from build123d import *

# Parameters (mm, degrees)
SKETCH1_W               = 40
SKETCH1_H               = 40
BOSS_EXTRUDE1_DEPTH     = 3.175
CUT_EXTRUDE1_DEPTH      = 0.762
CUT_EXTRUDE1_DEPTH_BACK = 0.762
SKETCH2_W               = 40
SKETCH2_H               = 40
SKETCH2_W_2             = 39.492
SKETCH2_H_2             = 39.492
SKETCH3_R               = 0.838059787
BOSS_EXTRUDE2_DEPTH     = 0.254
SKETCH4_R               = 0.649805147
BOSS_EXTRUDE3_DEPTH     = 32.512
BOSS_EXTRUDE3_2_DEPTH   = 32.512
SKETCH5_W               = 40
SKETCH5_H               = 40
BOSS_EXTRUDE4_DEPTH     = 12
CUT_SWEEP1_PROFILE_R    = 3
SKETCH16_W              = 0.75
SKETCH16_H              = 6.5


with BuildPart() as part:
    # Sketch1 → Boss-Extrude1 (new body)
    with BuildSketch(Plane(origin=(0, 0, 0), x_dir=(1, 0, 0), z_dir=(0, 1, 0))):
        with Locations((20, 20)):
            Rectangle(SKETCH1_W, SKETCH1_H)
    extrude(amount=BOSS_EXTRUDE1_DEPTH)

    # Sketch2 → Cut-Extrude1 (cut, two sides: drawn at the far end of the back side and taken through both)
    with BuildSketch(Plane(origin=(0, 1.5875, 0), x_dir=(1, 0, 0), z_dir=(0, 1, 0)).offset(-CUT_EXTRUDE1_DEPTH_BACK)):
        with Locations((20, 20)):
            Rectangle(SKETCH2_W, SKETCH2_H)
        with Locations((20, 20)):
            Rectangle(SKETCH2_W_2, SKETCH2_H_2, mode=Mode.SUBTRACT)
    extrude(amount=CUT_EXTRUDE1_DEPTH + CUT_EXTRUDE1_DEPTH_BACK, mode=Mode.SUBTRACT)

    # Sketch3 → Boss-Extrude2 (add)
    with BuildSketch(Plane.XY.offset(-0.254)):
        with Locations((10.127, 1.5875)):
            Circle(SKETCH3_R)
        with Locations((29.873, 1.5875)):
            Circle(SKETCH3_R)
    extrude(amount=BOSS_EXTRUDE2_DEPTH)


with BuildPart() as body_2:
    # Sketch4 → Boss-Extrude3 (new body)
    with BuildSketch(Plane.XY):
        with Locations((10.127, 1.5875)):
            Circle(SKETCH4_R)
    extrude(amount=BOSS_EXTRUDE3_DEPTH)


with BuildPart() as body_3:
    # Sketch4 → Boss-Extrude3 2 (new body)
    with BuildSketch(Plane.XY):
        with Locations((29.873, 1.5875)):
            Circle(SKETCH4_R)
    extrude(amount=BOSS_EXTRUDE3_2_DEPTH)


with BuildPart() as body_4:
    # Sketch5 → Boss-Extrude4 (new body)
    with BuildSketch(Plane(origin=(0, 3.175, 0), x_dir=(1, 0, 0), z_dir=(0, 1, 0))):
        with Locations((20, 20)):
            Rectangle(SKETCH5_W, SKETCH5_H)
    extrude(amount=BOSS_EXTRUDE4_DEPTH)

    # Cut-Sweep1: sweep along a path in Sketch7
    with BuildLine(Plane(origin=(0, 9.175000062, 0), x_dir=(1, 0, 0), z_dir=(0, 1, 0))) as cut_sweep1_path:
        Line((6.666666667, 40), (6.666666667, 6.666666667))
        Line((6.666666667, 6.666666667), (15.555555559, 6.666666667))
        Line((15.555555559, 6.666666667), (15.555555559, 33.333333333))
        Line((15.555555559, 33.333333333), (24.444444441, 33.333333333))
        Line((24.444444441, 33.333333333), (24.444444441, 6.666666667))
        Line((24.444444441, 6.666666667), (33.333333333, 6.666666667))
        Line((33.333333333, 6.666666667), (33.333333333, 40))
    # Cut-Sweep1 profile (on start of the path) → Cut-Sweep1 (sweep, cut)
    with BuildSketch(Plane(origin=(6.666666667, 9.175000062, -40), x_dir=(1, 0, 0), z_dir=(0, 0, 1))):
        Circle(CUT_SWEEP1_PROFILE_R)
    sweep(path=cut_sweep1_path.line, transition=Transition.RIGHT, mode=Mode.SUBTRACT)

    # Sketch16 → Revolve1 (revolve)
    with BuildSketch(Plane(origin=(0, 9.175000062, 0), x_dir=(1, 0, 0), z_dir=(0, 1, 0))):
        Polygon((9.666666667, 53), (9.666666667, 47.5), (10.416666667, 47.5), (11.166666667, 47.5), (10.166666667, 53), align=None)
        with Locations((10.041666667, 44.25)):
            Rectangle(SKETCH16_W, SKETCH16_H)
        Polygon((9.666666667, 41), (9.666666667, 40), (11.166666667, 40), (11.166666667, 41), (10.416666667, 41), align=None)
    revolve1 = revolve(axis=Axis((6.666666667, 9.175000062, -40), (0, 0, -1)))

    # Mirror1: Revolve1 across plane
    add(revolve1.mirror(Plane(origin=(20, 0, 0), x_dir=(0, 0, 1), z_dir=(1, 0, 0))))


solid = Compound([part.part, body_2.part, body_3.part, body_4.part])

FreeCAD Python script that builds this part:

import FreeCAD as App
import Part
import Sketcher

V = App.Vector
Q = App.Units.Quantity


def add_polygon(sketch, points):
    """Adds a closed chain of lines whose ends are joined by coincident constraints."""
    first, n = sketch.GeometryCount, len(points)
    for a, b in zip(points, points[1:] + points[:1]):
        sketch.addGeometry(Part.LineSegment(App.Vector(*a, 0), App.Vector(*b, 0)), False)
    for i in range(n):
        sketch.addConstraint(Sketcher.Constraint("Coincident", first + i, 2, first + (i + 1) % n, 1))

doc = App.newDocument("Part")
body = doc.addObject("PartDesign::Body", "Body")

# Sketch on XZ plane
sketch1 = body.newObject("Sketcher::SketchObject", "Sketch")
sketch1.AttachmentSupport = (doc.getObject("XZ_Plane"), [""])
sketch1.MapMode = "FlatFace"
add_polygon(sketch1, [(0, -40), (0, 0), (40, 0), (40, -40)])  # lines 0-3
sketch1.addConstraint(Sketcher.Constraint("Vertical", 0))
sketch1.addConstraint(Sketcher.Constraint("Horizontal", 1))
sketch1.addConstraint(Sketcher.Constraint("Vertical", 2))
sketch1.addConstraint(Sketcher.Constraint("Horizontal", 3))
sketch1.addConstraint(Sketcher.Constraint("Coincident", 0, 2, -1, 1))
sketch1.addConstraint(Sketcher.Constraint("Equal", 3, 0))
sketch1.addConstraint(Sketcher.Constraint("DistanceX", 1, 1, 1, 2, Q("40 mm")))
pad1 = body.newObject("PartDesign::Pad", "Pad")
pad1.Profile = sketch1
pad1.Length = 3.175
pad1.Reversed = True

# Sketch on XZ plane
sketch2 = body.newObject("Sketcher::SketchObject", "Sketch001")
sketch2.AttachmentSupport = (doc.getObject("XZ_Plane"), [""])
sketch2.MapMode = "FlatFace"
sketch2.AttachmentOffset = App.Placement(V(0, 0, -1.5875), App.Rotation())
add_polygon(sketch2, [(0, -40), (0, 0), (40, 0), (40, -40)])  # lines 0-3
add_polygon(sketch2, [(39.746, -0.254), (0.254, -0.254), (0.254, -39.746), (39.746, -39.746)])  # lines 4-7
sketch2.addConstraint(Sketcher.Constraint("Vertical", 0))
sketch2.addConstraint(Sketcher.Constraint("Horizontal", 1))
sketch2.addConstraint(Sketcher.Constraint("Vertical", 2))
sketch2.addConstraint(Sketcher.Constraint("Horizontal", 3))
sketch2.addConstraint(Sketcher.Constraint("Horizontal", 4))
sketch2.addConstraint(Sketcher.Constraint("Vertical", 5))
sketch2.addConstraint(Sketcher.Constraint("Horizontal", 6))
sketch2.addConstraint(Sketcher.Constraint("Vertical", 7))
sketch2.addConstraint(Sketcher.Constraint("Coincident", 0, 2, -1, 1))
sketch2.addConstraint(Sketcher.Constraint("Equal", 3, 0))
sketch2.addConstraint(Sketcher.Constraint("Equal", 6, 5))
sketch2.addConstraint(Sketcher.Constraint("DistanceX", 1, 1, 1, 2, Q("40 mm")))
sketch2.addConstraint(Sketcher.Constraint("DistanceX", 4, 2, 4, 1, Q("39.492 mm")))
sketch2.addConstraint(Sketcher.Constraint("DistanceX", -1, 1, 4, 2, Q("0.254 mm")))
sketch2.addConstraint(Sketcher.Constraint("DistanceY", 4, 2, -1, 1, Q("0.254 mm")))
pocket1 = body.newObject("PartDesign::Pocket", "Pocket")
pocket1.Profile = sketch2
pocket1.Type = "TwoLengths"
pocket1.Length = 0.762
pocket1.Length2 = 0.762

# Sketch on XY plane
sketch3 = body.newObject("Sketcher::SketchObject", "Sketch002")
sketch3.AttachmentSupport = (doc.getObject("XY_Plane"), [""])
sketch3.MapMode = "FlatFace"
sketch3.AttachmentOffset = App.Placement(V(0, 0, -0.254), App.Rotation())
sketch3.addGeometry(Part.Circle(V(10.127, 1.5875, 0), V(0, 0, 1), 0.83806), False)
sketch3.addGeometry(Part.Circle(V(29.873, 1.5875, 0), V(0, 0, 1), 0.83806), False)
sketch3.addConstraint(Sketcher.Constraint("Equal", 0, 1))
sketch3.addConstraint(Sketcher.Constraint("Horizontal", 0, 3, 1, 3))
sketch3.addConstraint(Sketcher.Constraint("Diameter", 0, Q("1.67612 mm")))
sketch3.addConstraint(Sketcher.Constraint("DistanceX", -1, 1, 0, 3, Q("10.127 mm")))
sketch3.addConstraint(Sketcher.Constraint("DistanceX", -1, 1, 1, 3, Q("29.873 mm")))
sketch3.addConstraint(Sketcher.Constraint("DistanceY", -1, 1, 0, 3, Q("1.5875 mm")))
pad2 = body.newObject("PartDesign::Pad", "Pad001")
pad2.Profile = sketch3
pad2.Length = 0.254
body2 = doc.addObject("PartDesign::Body", "Body001")

# Sketch on XY plane
sketch4 = body2.newObject("Sketcher::SketchObject", "Sketch003")
sketch4.AttachmentSupport = (doc.getObject("XY_Plane001"), [""])
sketch4.MapMode = "FlatFace"
sketch4.addGeometry(Part.Circle(V(10.127, 1.5875, 0), V(0, 0, 1), 0.649805), False)
sketch4.addConstraint(Sketcher.Constraint("Diameter", 0, Q("1.29961 mm")))
sketch4.addConstraint(Sketcher.Constraint("DistanceX", -1, 1, 0, 3, Q("10.127 mm")))
sketch4.addConstraint(Sketcher.Constraint("DistanceY", -1, 1, 0, 3, Q("1.5875 mm")))
pad3 = body2.newObject("PartDesign::Pad", "Pad002")
pad3.Profile = sketch4
pad3.Length = 32.512
body3 = doc.addObject("PartDesign::Body", "Body002")

# Sketch on XY plane
sketch5 = body3.newObject("Sketcher::SketchObject", "Sketch004")
sketch5.AttachmentSupport = (doc.getObject("XY_Plane002"), [""])
sketch5.MapMode = "FlatFace"
sketch5.addGeometry(Part.Circle(V(29.873, 1.5875, 0), V(0, 0, 1), 0.649805), False)
sketch5.addConstraint(Sketcher.Constraint("Diameter", 0, Q("1.29961 mm")))
sketch5.addConstraint(Sketcher.Constraint("DistanceX", -1, 1, 0, 3, Q("29.873 mm")))
sketch5.addConstraint(Sketcher.Constraint("DistanceY", -1, 1, 0, 3, Q("1.5875 mm")))
pad4 = body3.newObject("PartDesign::Pad", "Pad003")
pad4.Profile = sketch5
pad4.Length = 32.512
body4 = doc.addObject("PartDesign::Body", "Body003")

# Sketch on XZ plane
sketch6 = body4.newObject("Sketcher::SketchObject", "Sketch005")
sketch6.AttachmentSupport = (doc.getObject("XZ_Plane003"), [""])
sketch6.MapMode = "FlatFace"
sketch6.AttachmentOffset = App.Placement(V(0, 0, -3.175), App.Rotation())
add_polygon(sketch6, [(0, -40), (0, 0), (40, 0), (40, -40)])  # lines 0-3
sketch6.addConstraint(Sketcher.Constraint("Vertical", 0))
sketch6.addConstraint(Sketcher.Constraint("Horizontal", 1))
sketch6.addConstraint(Sketcher.Constraint("Vertical", 2))
sketch6.addConstraint(Sketcher.Constraint("Horizontal", 3))
sketch6.addConstraint(Sketcher.Constraint("Coincident", 0, 2, -1, 1))
sketch6.addConstraint(Sketcher.Constraint("Equal", 3, 0))
sketch6.addConstraint(Sketcher.Constraint("DistanceX", 1, 1, 1, 2, Q("40 mm")))
pad5 = body4.newObject("PartDesign::Pad", "Pad004")
pad5.Profile = sketch6
pad5.Length = 12
pad5.Reversed = True

# Sketch on XY plane
sketch7 = body4.newObject("Sketcher::SketchObject", "Sketch006")
sketch7.AttachmentSupport = (doc.getObject("XY_Plane003"), [""])
sketch7.MapMode = "FlatFace"
sketch7.AttachmentOffset = App.Placement(V(0, 0, -40), App.Rotation())
sketch7.addGeometry(Part.Circle(V(6.666667, 9.175, 0), V(0, 0, 1), 3), False)
sketch7.addConstraint(Sketcher.Constraint("Diameter", 0, Q("6 mm")))
sketch7.addConstraint(Sketcher.Constraint("DistanceY", -1, 1, 0, 3, Q("9.175 mm")))
sketch7.addConstraint(Sketcher.Constraint("DistanceX", -1, 1, 0, 3, Q("6.666667 mm")))

# Sketch on XZ plane
sketch8 = body4.newObject("Sketcher::SketchObject", "Sketch007")
sketch8.AttachmentSupport = (doc.getObject("XZ_Plane003"), [""])
sketch8.MapMode = "FlatFace"
sketch8.AttachmentOffset = App.Placement(V(0, 0, -9.175), App.Rotation())
sketch8.addGeometry(Part.LineSegment(V(6.666667, -40, 0), V(6.666667, -6.666667, 0)), False)
sketch8.addGeometry(Part.LineSegment(V(6.666667, -6.666667, 0), V(15.555556, -6.666667, 0)), False)
sketch8.addGeometry(Part.LineSegment(V(15.555556, -6.666667, 0), V(15.555556, -33.333333, 0)), False)
sketch8.addGeometry(Part.LineSegment(V(15.555556, -33.333333, 0), V(24.444444, -33.333333, 0)), False)
sketch8.addGeometry(Part.LineSegment(V(24.444444, -33.333333, 0), V(24.444444, -6.666667, 0)), False)
sketch8.addGeometry(Part.LineSegment(V(24.444444, -6.666667, 0), V(33.333333, -6.666667, 0)), False)
sketch8.addGeometry(Part.LineSegment(V(33.333333, -6.666667, 0), V(33.333333, -40, 0)), False)
sketch8.addConstraint(Sketcher.Constraint("Coincident", 0, 2, 1, 1))
sketch8.addConstraint(Sketcher.Constraint("Coincident", 1, 2, 2, 1))
sketch8.addConstraint(Sketcher.Constraint("Coincident", 2, 2, 3, 1))
sketch8.addConstraint(Sketcher.Constraint("Coincident", 3, 2, 4, 1))
sketch8.addConstraint(Sketcher.Constraint("Coincident", 4, 2, 5, 1))
sketch8.addConstraint(Sketcher.Constraint("Coincident", 5, 2, 6, 1))
sketch8.addConstraint(Sketcher.Constraint("Vertical", 0))
sketch8.addConstraint(Sketcher.Constraint("Horizontal", 1))
sketch8.addConstraint(Sketcher.Constraint("Vertical", 2))
sketch8.addConstraint(Sketcher.Constraint("Horizontal", 3))
sketch8.addConstraint(Sketcher.Constraint("Vertical", 4))
sketch8.addConstraint(Sketcher.Constraint("Horizontal", 5))
sketch8.addConstraint(Sketcher.Constraint("Vertical", 6))
sketch8.addConstraint(Sketcher.Constraint("Horizontal", 1, 2, 4, 2))
sketch8.addConstraint(Sketcher.Constraint("Horizontal", 0, 1, 6, 2))
sketch8.addConstraint(Sketcher.Constraint("Equal", 1, 3))
sketch8.addConstraint(Sketcher.Constraint("Equal", 3, 5))
sketch8.addConstraint(Sketcher.Constraint("DistanceY", 0, 1, -1, 1, Q("40 mm")))
sketch8.addConstraint(Sketcher.Constraint("DistanceX", 1, 1, 1, 2, Q("8.888889 mm")))
sketch8.addConstraint(Sketcher.Constraint("DistanceY", 0, 1, 0, 2, Q("33.333333 mm")))
sketch8.addConstraint(Sketcher.Constraint("DistanceY", 2, 2, 2, 1, Q("26.666667 mm")))
sketch8.addConstraint(Sketcher.Constraint("DistanceX", -1, 1, 0, 1, Q("6.666667 mm")))
doc.recompute()

subtractivepipe = body4.newObject("PartDesign::SubtractivePipe", "SubtractivePipe")
subtractivepipe.Profile = sketch7
subtractivepipe.Spine = (sketch8, ["Edge1", "Edge2", "Edge3", "Edge4", "Edge5", "Edge6", "Edge7"])
subtractivepipe.Transition = "Right corner"

# Sketch on XZ plane
sketch9 = body4.newObject("Sketcher::SketchObject", "Sketch008")
sketch9.AttachmentSupport = (doc.getObject("XZ_Plane003"), [""])
sketch9.MapMode = "FlatFace"
sketch9.AttachmentOffset = App.Placement(V(0, 0, -9.175), App.Rotation())
add_polygon(sketch9, [(9.666667, -53), (9.666667, -40), (11.166667, -40), (11.166667, -41), (10.416667, -41), (10.416667, -47.5), (11.166667, -47.5), (10.166667, -53)])  # lines 0-7
sketch9.addGeometry(Part.LineSegment(V(6.666667, -40, 0), V(6.666667, -53, 0)), True)  # axis
sketch9.addConstraint(Sketcher.Constraint("Vertical", 0))
sketch9.addConstraint(Sketcher.Constraint("Horizontal", 1))
sketch9.addConstraint(Sketcher.Constraint("Vertical", 2))
sketch9.addConstraint(Sketcher.Constraint("Horizontal", 3))
sketch9.addConstraint(Sketcher.Constraint("Vertical", 4))
sketch9.addConstraint(Sketcher.Constraint("Horizontal", 5))
sketch9.addConstraint(Sketcher.Constraint("Horizontal", 7))
sketch9.addConstraint(Sketcher.Constraint("Vertical", 8))
sketch9.addConstraint(Sketcher.Constraint("Horizontal", 1, 2, 8, 1))
sketch9.addConstraint(Sketcher.Constraint("Horizontal", 7, 2, 8, 2))
sketch9.addConstraint(Sketcher.Constraint("Vertical", 2, 2, 5, 2))
sketch9.addConstraint(Sketcher.Constraint("DistanceY", 0, 1, 0, 2, Q("13 mm")))
sketch9.addConstraint(Sketcher.Constraint("DistanceY", 2, 2, 2, 1, Q("1 mm")))
sketch9.addConstraint(Sketcher.Constraint("DistanceX", 1, 1, 1, 2, Q("1.5 mm")))
sketch9.addConstraint(Sketcher.Constraint("DistanceX", 7, 2, 7, 1, Q("0.5 mm")))
sketch9.addConstraint(Sketcher.Constraint("DistanceY", 4, 2, 4, 1, Q("6.5 mm")))
sketch9.addConstraint(Sketcher.Constraint("DistanceY", 0, 2, -1, 1, Q("40 mm")))
sketch9.addConstraint(Sketcher.Constraint("DistanceX", 8, 1, 0, 2, Q("3 mm")))
sketch9.addConstraint(Sketcher.Constraint("DistanceX", 3, 2, 3, 1, Q("0.75 mm")))
sketch9.addConstraint(Sketcher.Constraint("DistanceX", -1, 1, 0, 2, Q("9.666667 mm")))
revolution = body4.newObject("PartDesign::Revolution", "Revolution")
revolution.Profile = sketch9
revolution.ReferenceAxis = (sketch9, ["Axis0"])
revolution.Angle = 360
doc.recompute()

datumplane = body4.newObject("PartDesign::Plane", "DatumPlane")
datumplane.AttachmentSupport = (doc.getObject("YZ_Plane003"), [""])
datumplane.MapMode = "FlatFace"
datumplane.AttachmentOffset = App.Placement(V(0, 0, 20), App.Rotation())
mirrored = body4.newObject("PartDesign::Mirrored", "Mirrored")
mirrored.Originals = [revolution]
mirrored.MirrorPlane = (datumplane, [""])
body4.Tip = mirrored

doc.recompute()
